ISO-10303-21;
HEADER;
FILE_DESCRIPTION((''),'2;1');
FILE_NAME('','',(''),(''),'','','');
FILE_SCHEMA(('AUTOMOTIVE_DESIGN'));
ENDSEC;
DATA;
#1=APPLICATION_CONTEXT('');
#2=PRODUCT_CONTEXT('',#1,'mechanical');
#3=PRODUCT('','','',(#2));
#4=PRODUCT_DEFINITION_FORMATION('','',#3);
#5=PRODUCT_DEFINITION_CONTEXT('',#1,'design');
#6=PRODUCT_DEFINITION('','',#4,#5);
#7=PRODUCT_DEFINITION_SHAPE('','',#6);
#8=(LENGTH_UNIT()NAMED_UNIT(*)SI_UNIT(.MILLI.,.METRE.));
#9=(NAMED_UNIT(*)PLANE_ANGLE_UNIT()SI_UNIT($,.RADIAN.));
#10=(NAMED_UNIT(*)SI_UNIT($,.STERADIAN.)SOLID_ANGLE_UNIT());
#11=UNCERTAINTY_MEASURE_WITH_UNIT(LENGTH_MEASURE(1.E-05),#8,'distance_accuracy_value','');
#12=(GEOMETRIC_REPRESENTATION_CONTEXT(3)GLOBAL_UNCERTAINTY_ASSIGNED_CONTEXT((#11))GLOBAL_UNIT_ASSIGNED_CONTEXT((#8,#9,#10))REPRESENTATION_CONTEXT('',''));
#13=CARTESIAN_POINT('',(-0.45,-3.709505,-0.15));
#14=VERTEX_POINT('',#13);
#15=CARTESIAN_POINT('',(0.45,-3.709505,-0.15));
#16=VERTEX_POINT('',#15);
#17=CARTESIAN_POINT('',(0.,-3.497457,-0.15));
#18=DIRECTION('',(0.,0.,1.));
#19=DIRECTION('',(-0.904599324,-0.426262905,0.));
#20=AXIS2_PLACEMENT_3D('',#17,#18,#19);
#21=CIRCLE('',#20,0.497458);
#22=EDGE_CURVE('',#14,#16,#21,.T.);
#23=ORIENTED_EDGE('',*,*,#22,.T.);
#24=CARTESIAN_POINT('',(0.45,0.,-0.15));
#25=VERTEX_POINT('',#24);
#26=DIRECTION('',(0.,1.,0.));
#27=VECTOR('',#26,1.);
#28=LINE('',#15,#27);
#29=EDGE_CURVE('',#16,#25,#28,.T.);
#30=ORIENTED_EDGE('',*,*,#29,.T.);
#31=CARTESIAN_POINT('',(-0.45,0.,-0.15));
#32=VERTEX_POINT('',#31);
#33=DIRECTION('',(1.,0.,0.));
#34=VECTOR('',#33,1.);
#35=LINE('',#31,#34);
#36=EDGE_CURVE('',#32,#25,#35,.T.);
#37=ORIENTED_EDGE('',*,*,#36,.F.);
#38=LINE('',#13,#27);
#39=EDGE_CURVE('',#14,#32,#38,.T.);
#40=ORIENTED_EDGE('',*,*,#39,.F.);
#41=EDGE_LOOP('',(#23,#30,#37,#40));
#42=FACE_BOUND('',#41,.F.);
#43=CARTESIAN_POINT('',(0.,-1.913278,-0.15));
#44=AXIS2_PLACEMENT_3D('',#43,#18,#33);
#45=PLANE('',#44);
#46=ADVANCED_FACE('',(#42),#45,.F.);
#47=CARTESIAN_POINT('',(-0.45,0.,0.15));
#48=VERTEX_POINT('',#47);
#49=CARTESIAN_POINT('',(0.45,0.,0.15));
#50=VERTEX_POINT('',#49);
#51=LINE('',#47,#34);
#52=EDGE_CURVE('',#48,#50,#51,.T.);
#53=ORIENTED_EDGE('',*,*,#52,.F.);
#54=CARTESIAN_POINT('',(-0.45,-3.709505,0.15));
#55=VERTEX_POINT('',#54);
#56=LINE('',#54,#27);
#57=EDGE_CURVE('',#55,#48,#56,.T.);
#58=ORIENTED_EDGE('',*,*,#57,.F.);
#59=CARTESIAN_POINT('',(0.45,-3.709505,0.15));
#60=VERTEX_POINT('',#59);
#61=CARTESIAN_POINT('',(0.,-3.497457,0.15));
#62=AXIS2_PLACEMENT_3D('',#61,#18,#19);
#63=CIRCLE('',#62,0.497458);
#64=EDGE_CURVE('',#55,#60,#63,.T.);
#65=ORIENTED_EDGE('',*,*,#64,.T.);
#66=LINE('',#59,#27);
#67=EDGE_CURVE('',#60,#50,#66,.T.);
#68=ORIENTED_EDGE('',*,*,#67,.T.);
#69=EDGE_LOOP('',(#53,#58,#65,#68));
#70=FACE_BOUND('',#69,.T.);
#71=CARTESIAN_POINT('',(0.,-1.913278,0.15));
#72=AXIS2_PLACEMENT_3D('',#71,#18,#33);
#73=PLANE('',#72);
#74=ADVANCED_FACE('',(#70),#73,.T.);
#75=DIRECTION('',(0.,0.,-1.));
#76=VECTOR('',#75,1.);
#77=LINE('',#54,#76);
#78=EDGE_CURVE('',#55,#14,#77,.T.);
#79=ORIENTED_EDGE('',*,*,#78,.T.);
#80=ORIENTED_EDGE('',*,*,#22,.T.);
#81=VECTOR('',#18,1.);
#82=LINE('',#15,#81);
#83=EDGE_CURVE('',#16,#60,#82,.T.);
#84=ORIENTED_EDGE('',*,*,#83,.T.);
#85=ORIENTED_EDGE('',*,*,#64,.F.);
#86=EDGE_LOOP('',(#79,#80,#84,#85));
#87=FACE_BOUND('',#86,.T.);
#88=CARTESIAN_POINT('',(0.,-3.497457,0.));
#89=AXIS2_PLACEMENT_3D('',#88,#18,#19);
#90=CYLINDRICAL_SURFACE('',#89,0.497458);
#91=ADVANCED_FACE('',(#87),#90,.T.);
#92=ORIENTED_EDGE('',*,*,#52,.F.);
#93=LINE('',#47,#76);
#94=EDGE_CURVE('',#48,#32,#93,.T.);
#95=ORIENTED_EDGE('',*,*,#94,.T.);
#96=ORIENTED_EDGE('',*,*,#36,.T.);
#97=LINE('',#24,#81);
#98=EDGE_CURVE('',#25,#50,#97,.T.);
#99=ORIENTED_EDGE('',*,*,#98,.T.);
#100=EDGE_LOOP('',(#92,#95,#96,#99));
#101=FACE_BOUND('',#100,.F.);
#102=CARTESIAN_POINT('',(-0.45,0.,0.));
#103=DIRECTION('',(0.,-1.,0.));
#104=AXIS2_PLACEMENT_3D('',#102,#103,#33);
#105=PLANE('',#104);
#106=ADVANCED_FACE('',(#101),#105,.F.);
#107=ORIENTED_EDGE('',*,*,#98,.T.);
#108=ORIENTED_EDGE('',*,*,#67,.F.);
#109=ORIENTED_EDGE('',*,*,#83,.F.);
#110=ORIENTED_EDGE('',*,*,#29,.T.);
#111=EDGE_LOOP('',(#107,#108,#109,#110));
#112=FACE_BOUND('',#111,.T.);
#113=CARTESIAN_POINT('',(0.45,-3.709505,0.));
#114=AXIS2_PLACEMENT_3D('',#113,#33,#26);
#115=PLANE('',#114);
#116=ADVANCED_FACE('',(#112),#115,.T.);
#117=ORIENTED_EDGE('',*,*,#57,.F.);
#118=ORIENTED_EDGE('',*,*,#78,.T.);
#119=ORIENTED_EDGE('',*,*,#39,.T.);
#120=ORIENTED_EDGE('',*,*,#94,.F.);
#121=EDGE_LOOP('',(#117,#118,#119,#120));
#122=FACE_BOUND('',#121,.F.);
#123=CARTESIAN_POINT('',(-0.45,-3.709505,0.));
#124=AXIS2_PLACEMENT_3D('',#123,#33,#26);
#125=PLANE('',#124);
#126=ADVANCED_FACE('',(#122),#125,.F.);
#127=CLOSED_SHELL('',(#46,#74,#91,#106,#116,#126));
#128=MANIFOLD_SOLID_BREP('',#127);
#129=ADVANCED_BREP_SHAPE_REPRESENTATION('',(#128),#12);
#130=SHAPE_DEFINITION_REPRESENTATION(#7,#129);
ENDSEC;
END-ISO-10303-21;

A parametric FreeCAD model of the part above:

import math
import FreeCAD as App
import Part
import Sketcher
from FreeCAD import Vector

doc = App.newDocument("Part")
body = doc.addObject("PartDesign::Body", "Body")

# Sketch on XY plane
sketch1 = doc.addObject("Sketcher::SketchObject", "Sketch")
body.addObject(sketch1)
sketch1.AttachmentSupport = (doc.XY_Plane, [""])
sketch1.MapMode = "FlatFace"
sketch1.addGeometry([
    Part.ArcOfCircle(Part.Circle(Vector(0, -3.5, 0), Vector(0, 0, 1), 0.5), math.radians(-155), math.radians(-25)),
    Part.LineSegment(Vector(0.45, -3.71, 0), Vector(0.45, 0, 0)),
    Part.LineSegment(Vector(0.45, 0, 0), Vector(-0.45, 0, 0)),
    Part.LineSegment(Vector(-0.45, 0, 0), Vector(-0.45, -3.71, 0)),
], False)
sketch1.addConstraint([
    Sketcher.Constraint("Coincident", 0, 2, 1, 1),
    Sketcher.Constraint("Coincident", 1, 2, 2, 1),
    Sketcher.Constraint("Coincident", 2, 2, 3, 1),
    Sketcher.Constraint("Coincident", 3, 2, 0, 1),
    Sketcher.Constraint("Vertical", 1),
    Sketcher.Constraint("Horizontal", 2),
    Sketcher.Constraint("Vertical", 3),
    Sketcher.Constraint("Symmetric", 1, 2, 2, 2, -1, 1),
    Sketcher.Constraint("PointOnObject", 0, 3, -2),
    Sketcher.Constraint("DistanceX", 2, 2, 2, 1, 0.9),
    Sketcher.Constraint("Radius", 0, 0.497458),
    Sketcher.Constraint("DistanceY", 1, 1, 1, 2, 3.709505),
])
pad1 = doc.addObject("PartDesign::Pad", "Pad")
body.addObject(pad1)
pad1.Profile = sketch1
pad1.Length = 0.3
pad1.Midplane = True

doc.recompute()
